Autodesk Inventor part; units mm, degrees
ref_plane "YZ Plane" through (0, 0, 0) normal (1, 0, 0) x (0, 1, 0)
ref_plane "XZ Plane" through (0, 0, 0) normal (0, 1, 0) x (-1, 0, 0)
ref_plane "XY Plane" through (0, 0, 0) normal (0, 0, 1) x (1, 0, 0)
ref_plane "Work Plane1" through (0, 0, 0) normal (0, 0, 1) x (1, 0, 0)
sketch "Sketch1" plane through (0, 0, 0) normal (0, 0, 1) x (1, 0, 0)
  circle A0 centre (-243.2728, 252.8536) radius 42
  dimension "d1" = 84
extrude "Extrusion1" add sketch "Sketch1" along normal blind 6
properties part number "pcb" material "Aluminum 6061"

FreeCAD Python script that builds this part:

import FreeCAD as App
import Part
import Sketcher
from FreeCAD import Vector

doc = App.newDocument("Part")
body = doc.addObject("PartDesign::Body", "Body")

# Sketch on XY plane
sketch1 = body.newObject("Sketcher::SketchObject", "Sketch")
sketch1.AttachmentSupport = (doc.getObject("XY_Plane"), [""])
sketch1.MapMode = "FlatFace"
sketch1.addGeometry(Part.Circle(Vector(-243, 253, 0), Vector(0, 0, 1), 42), False)
sketch1.addConstraint([
    Sketcher.Constraint("Diameter", 0, 84.0),
    Sketcher.Constraint("DistanceX", 0, 3, -1, 1, 243.2728),
    Sketcher.Constraint("DistanceY", -1, 1, 0, 3, 252.8536),
])
pad1 = body.newObject("PartDesign::Pad", "Pad")
pad1.Profile = sketch1
pad1.Length = 6

doc.recompute()
